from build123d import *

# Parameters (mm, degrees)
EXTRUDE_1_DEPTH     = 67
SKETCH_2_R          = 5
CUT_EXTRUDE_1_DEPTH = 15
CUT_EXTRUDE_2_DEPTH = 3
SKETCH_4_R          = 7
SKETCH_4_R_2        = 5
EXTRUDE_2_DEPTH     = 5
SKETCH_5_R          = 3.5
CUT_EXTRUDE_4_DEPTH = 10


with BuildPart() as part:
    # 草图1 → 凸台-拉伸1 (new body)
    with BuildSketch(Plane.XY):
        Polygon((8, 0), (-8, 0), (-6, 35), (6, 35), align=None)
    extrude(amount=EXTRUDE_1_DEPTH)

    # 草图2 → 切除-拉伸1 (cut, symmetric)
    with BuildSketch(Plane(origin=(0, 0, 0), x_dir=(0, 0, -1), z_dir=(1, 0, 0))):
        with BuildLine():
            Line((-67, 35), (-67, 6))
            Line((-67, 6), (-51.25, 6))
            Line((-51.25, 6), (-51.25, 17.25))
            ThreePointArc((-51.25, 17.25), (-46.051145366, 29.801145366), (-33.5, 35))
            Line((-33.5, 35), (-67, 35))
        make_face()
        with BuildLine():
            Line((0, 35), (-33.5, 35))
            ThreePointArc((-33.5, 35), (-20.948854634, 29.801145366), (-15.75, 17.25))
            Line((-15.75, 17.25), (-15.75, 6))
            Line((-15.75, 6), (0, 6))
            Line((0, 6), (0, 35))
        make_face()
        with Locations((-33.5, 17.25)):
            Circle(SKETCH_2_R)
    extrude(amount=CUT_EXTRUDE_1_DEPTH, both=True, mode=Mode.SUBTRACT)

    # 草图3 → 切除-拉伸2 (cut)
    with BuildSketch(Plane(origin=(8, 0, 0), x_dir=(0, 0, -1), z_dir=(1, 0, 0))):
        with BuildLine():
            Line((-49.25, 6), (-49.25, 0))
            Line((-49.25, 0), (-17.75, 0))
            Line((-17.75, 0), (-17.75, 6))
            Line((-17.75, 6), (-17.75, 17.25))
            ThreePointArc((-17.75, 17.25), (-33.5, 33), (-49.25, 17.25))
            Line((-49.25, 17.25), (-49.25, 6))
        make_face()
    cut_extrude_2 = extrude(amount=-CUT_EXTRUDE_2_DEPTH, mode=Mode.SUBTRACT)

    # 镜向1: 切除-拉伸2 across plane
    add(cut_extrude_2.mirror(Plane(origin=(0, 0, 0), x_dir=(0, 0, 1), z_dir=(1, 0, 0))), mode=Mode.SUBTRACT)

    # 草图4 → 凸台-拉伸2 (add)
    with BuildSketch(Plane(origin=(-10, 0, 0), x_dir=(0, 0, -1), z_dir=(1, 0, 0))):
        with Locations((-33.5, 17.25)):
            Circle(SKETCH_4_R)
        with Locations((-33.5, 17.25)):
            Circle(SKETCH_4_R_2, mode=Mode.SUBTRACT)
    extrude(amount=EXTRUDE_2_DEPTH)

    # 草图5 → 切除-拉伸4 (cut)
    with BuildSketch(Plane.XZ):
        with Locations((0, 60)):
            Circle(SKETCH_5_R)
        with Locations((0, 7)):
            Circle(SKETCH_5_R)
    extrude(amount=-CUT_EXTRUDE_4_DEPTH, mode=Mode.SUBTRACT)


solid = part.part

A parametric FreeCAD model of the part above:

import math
import FreeCAD as App
import Part
import Sketcher
Q = App.Units.Quantity

doc = App.newDocument("Part")
body = doc.addObject("PartDesign::Body", "Body")

# Sketch on XY plane
sketch1 = doc.addObject("Sketcher::SketchObject", "Sketch")
body.addObject(sketch1)
sketch1.AttachmentSupport = (doc.XY_Plane, [""])
sketch1.MapMode = "FlatFace"
sketch1.addGeometry([
    Part.LineSegment(App.Vector(-8, 0, 0), App.Vector(8, 0, 0)),
    Part.LineSegment(App.Vector(8, 0, 0), App.Vector(6, 35, 0)),
    Part.LineSegment(App.Vector(6, 35, 0), App.Vector(-6, 35, 0)),
    Part.LineSegment(App.Vector(-6, 35, 0), App.Vector(-8, 0, 0)),
], False)
sketch1.addConstraint([
    Sketcher.Constraint("Coincident", 0, 2, 1, 1),
    Sketcher.Constraint("Coincident", 1, 2, 2, 1),
    Sketcher.Constraint("Coincident", 2, 2, 3, 1),
    Sketcher.Constraint("Coincident", 3, 2, 0, 1),
    Sketcher.Constraint("Horizontal", 0),
    Sketcher.Constraint("Horizontal", 2),
    Sketcher.Constraint("Symmetric", 0, 2, 3, 2, -1, 1),
    Sketcher.Constraint("Equal", 1, 3),
    Sketcher.Constraint("DistanceX", 0, 1, 0, 2, Q("16 mm")),
    Sketcher.Constraint("DistanceX", 2, 2, 2, 1, Q("12 mm")),
    Sketcher.Constraint("DistanceY", -1, 1, 1, 2, Q("35 mm")),
])
pad1 = doc.addObject("PartDesign::Pad", "Pad")
body.addObject(pad1)
pad1.Profile = sketch1
pad1.Length = 67

# Sketch on YZ plane
sketch2 = doc.addObject("Sketcher::SketchObject", "Sketch001")
body.addObject(sketch2)
sketch2.AttachmentSupport = (doc.YZ_Plane, [""])
sketch2.MapMode = "FlatFace"
sketch2.addGeometry([
    Part.LineSegment(App.Vector(35, 67, 0), App.Vector(6, 67, 0)),  # 0
    Part.LineSegment(App.Vector(6, 67, 0), App.Vector(6, 51, 0)),  # 1
    Part.LineSegment(App.Vector(6, 51, 0), App.Vector(17, 51, 0)),  # 2
    Part.ArcOfCircle(Part.Circle(App.Vector(17, 34, 0), App.Vector(0, 0, 1), 18), math.radians(0), math.radians(90)),  # 3
    Part.LineSegment(App.Vector(35, 34, 0), App.Vector(35, 67, 0)),  # 4
    Part.LineSegment(App.Vector(35, 0, 0), App.Vector(35, 34, 0)),  # 5
    Part.ArcOfCircle(Part.Circle(App.Vector(17, 34, 0), App.Vector(0, 0, 1), 18), math.radians(-90), math.radians(0)),  # 6
    Part.LineSegment(App.Vector(17, 16, 0), App.Vector(6, 16, 0)),  # 7
    Part.LineSegment(App.Vector(6, 16, 0), App.Vector(6, 0, 0)),  # 8
    Part.LineSegment(App.Vector(6, 0, 0), App.Vector(35, 0, 0)),  # 9
    Part.Circle(App.Vector(17, 34, 0), App.Vector(0, 0, 1), 5),  # 10
], False)
sketch2.addConstraint([
    Sketcher.Constraint("Coincident", 0, 2, 1, 1),
    Sketcher.Constraint("Coincident", 1, 2, 2, 1),
    Sketcher.Constraint("Tangent", 2, 2, 3, 2),
    Sketcher.Constraint("Tangent", 3, 1, 4, 1),
    Sketcher.Constraint("Coincident", 4, 2, 0, 1),
    Sketcher.Constraint("Tangent", 5, 2, 6, 2),
    Sketcher.Constraint("Tangent", 6, 1, 7, 1),
    Sketcher.Constraint("Coincident", 7, 2, 8, 1),
    Sketcher.Constraint("Coincident", 8, 2, 9, 1),
    Sketcher.Constraint("Coincident", 9, 2, 5, 1),
    Sketcher.Constraint("Horizontal", 0),
    Sketcher.Constraint("Vertical", 1),
    Sketcher.Constraint("Horizontal", 2),
    Sketcher.Constraint("Vertical", 4),
    Sketcher.Constraint("Vertical", 5),
    Sketcher.Constraint("Horizontal", 7),
    Sketcher.Constraint("Vertical", 8),
    Sketcher.Constraint("Horizontal", 9),
    Sketcher.Constraint("Coincident", 6, 3, 3, 3),
    Sketcher.Constraint("Coincident", 10, 3, 3, 3),
    Sketcher.Constraint("Equal", 3, 6),
    Sketcher.Constraint("PointOnObject", 8, 2, -1),
    Sketcher.Constraint("Vertical", 1, 2, 7, 2),
    Sketcher.Constraint("Equal", 4, 5),
    Sketcher.Constraint("Diameter", 10, Q("10 mm")),
    Sketcher.Constraint("DistanceX", 0, 2, 0, 1, Q("29 mm")),
    Sketcher.Constraint("Radius", 3, Q("17.75 mm")),
    Sketcher.Constraint("DistanceY", 4, 1, 4, 2, Q("33.5 mm")),
    Sketcher.Constraint("DistanceX", -1, 1, 0, 2, Q("6 mm")),
])
pocket1 = doc.addObject("PartDesign::Pocket", "Pocket")
body.addObject(pocket1)
pocket1.Profile = sketch2
pocket1.Length = 30
pocket1.Midplane = True

# Sketch on YZ plane
sketch3 = doc.addObject("Sketcher::SketchObject", "Sketch002")
body.addObject(sketch3)
sketch3.AttachmentSupport = (doc.YZ_Plane, [""])
sketch3.MapMode = "FlatFace"
sketch3.AttachmentOffset = App.Placement(App.Vector(0, 0, 8), App.Rotation())
sketch3.addGeometry([
    Part.LineSegment(App.Vector(0, 49, 0), App.Vector(0, 18, 0)),
    Part.LineSegment(App.Vector(0, 18, 0), App.Vector(17, 18, 0)),
    Part.ArcOfCircle(Part.Circle(App.Vector(17, 34, 0), App.Vector(0, 0, 1), 16), math.radians(-90), math.radians(90)),
    Part.LineSegment(App.Vector(17, 49, 0), App.Vector(0, 49, 0)),
], False)
sketch3.addConstraint([
    Sketcher.Constraint("Coincident", 0, 2, 1, 1),
    Sketcher.Constraint("Tangent", 1, 2, 2, 1),
    Sketcher.Constraint("Tangent", 2, 2, 3, 1),
    Sketcher.Constraint("Coincident", 3, 2, 0, 1),
    Sketcher.Constraint("Vertical", 0),
    Sketcher.Constraint("Horizontal", 1),
    Sketcher.Constraint("Horizontal", 3),
    Sketcher.Constraint("PointOnObject", 0, 2, -2),
    Sketcher.Constraint("Radius", 2, Q("15.75 mm")),
    Sketcher.Constraint("DistanceX", 1, 1, 1, 2, Q("17.25 mm")),
    Sketcher.Constraint("DistanceY", -1, 1, 2, 3, Q("33.5 mm")),
])
pocket2 = doc.addObject("PartDesign::Pocket", "Pocket001")
body.addObject(pocket2)
pocket2.Profile = sketch3
pocket2.Length = 3
doc.recompute()

mirrored = doc.addObject("PartDesign::Mirrored", "Mirrored")
body.addObject(mirrored)
mirrored.Originals = [pocket2]
mirrored.MirrorPlane = (doc.YZ_Plane, [""])
body.Tip = mirrored

# Sketch on YZ plane
sketch4 = doc.addObject("Sketcher::SketchObject", "Sketch003")
body.addObject(sketch4)
sketch4.AttachmentSupport = (doc.YZ_Plane, [""])
sketch4.MapMode = "FlatFace"
sketch4.AttachmentOffset = App.Placement(App.Vector(0, 0, -10), App.Rotation())
sketch4.addGeometry([
    Part.Circle(App.Vector(17, 34, 0), App.Vector(0, 0, 1), 7),
    Part.Circle(App.Vector(17, 34, 0), App.Vector(0, 0, 1), 5),
], False)
sketch4.addConstraint([
    Sketcher.Constraint("Coincident", 1, 3, 0, 3),
    Sketcher.Constraint("Diameter", 0, Q("14 mm")),
    Sketcher.Constraint("Diameter", 1, Q("10 mm")),
    Sketcher.Constraint("DistanceY", -1, 1, 0, 3, Q("33.5 mm")),
    Sketcher.Constraint("DistanceX", -1, 1, 0, 3, Q("17.25 mm")),
])
pad2 = doc.addObject("PartDesign::Pad", "Pad001")
body.addObject(pad2)
pad2.Profile = sketch4
pad2.Length = 5

# Sketch on XZ plane
sketch5 = doc.addObject("Sketcher::SketchObject", "Sketch004")
body.addObject(sketch5)
sketch5.AttachmentSupport = (doc.XZ_Plane, [""])
sketch5.MapMode = "FlatFace"
sketch5.addGeometry([
    Part.Circle(App.Vector(0, 60, 0), App.Vector(0, 0, 1), 3.5),
    Part.Circle(App.Vector(0, 7, 0), App.Vector(0, 0, 1), 3.5),
], False)
sketch5.addConstraint([
    Sketcher.Constraint("Equal", 0, 1),
    Sketcher.Constraint("PointOnObject", 0, 3, -2),
    Sketcher.Constraint("PointOnObject", 1, 3, -2),
    Sketcher.Constraint("Diameter", 0, Q("7 mm")),
    Sketcher.Constraint("DistanceY", -1, 1, 0, 3, Q("60 mm")),
    Sketcher.Constraint("DistanceY", -1, 1, 1, 3, Q("7 mm")),
])
pocket3 = doc.addObject("PartDesign::Pocket", "Pocket002")
body.addObject(pocket3)
pocket3.Profile = sketch5
pocket3.Length = 10

doc.recompute()
